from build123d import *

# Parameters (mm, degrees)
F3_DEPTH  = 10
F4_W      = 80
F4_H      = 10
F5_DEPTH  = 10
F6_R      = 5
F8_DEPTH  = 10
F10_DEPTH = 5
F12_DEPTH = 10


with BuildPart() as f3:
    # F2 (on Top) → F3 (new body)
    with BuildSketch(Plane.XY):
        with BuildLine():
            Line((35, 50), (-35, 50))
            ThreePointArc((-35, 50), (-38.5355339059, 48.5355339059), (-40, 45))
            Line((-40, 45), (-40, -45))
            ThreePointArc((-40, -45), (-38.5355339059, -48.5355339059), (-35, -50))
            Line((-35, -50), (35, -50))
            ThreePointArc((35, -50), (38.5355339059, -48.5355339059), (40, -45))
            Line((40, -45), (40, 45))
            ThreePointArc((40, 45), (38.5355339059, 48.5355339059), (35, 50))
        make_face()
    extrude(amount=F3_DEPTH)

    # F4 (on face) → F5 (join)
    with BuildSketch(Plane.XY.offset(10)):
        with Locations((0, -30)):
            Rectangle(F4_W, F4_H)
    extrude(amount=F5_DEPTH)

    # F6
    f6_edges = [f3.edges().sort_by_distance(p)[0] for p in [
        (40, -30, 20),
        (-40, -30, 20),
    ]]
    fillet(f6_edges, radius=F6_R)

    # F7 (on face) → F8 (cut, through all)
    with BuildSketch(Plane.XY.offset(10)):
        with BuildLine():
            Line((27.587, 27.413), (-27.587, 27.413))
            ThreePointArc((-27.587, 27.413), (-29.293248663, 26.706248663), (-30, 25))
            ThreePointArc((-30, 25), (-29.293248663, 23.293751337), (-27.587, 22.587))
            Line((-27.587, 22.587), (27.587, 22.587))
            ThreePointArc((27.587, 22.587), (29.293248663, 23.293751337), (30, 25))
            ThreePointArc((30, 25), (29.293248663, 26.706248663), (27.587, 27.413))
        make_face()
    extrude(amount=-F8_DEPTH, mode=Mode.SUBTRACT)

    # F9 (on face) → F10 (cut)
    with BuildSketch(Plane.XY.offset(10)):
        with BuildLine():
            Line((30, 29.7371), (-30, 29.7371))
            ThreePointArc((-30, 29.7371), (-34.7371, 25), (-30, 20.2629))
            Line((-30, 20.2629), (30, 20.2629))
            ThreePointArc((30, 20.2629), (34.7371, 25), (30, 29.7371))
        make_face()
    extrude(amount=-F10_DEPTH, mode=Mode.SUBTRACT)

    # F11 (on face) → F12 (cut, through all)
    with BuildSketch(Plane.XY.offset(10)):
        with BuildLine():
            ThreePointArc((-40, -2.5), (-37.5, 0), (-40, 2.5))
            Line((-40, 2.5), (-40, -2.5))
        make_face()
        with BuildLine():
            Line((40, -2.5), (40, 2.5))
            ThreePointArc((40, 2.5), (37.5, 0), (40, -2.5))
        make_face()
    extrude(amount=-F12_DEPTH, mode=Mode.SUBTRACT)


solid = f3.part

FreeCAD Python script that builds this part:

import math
import FreeCAD as App
import Part
import Sketcher

V = App.Vector
Q = App.Units.Quantity


def edges_at(feature, points):
    """Names of the edges that pass closest to the given points."""
    edges = feature.Shape.Edges
    near = lambda p: min(range(len(edges)), key=lambda i: edges[i].distToShape(Part.Vertex(*p))[0])
    return sorted({f"Edge{near(p) + 1}" for p in points})


def add_polygon(sketch, points):
    """Adds a closed chain of lines whose ends are joined by coincident constraints."""
    first, n = sketch.GeometryCount, len(points)
    for a, b in zip(points, points[1:] + points[:1]):
        sketch.addGeometry(Part.LineSegment(App.Vector(*a, 0), App.Vector(*b, 0)), False)
    for i in range(n):
        sketch.addConstraint(Sketcher.Constraint("Coincident", first + i, 2, first + (i + 1) % n, 1))

doc = App.newDocument("Part")
body = doc.addObject("PartDesign::Body", "Body")

# Sketch on XY plane
sketch1 = doc.addObject("Sketcher::SketchObject", "Sketch")
body.addObject(sketch1)
sketch1.AttachmentSupport = (doc.XY_Plane, [""])
sketch1.MapMode = "FlatFace"
sketch1.addGeometry([
    Part.LineSegment(V(35, 50, 0), V(-35, 50, 0)),  # 0
    Part.ArcOfCircle(Part.Circle(V(-35, 45, 0), V(0, 0, 1), 5), math.radians(90), math.radians(180)),  # 1
    Part.LineSegment(V(-40, 45, 0), V(-40, -45, 0)),  # 2
    Part.ArcOfCircle(Part.Circle(V(-35, -45, 0), V(0, 0, 1), 5), math.radians(180), math.radians(270)),  # 3
    Part.LineSegment(V(-35, -50, 0), V(35, -50, 0)),  # 4
    Part.ArcOfCircle(Part.Circle(V(35, -45, 0), V(0, 0, 1), 5), math.radians(-90), math.radians(0)),  # 5
    Part.LineSegment(V(40, -45, 0), V(40, 45, 0)),  # 6
    Part.ArcOfCircle(Part.Circle(V(35, 45, 0), V(0, 0, 1), 5), math.radians(0), math.radians(90)),  # 7
], False)
sketch1.addConstraint([
    Sketcher.Constraint("Tangent", 0, 2, 1, 1),
    Sketcher.Constraint("Tangent", 1, 2, 2, 1),
    Sketcher.Constraint("Tangent", 2, 2, 3, 1),
    Sketcher.Constraint("Tangent", 3, 2, 4, 1),
    Sketcher.Constraint("Tangent", 4, 2, 5, 1),
    Sketcher.Constraint("Tangent", 5, 2, 6, 1),
    Sketcher.Constraint("Tangent", 6, 2, 7, 1),
    Sketcher.Constraint("Tangent", 7, 2, 0, 1),
    Sketcher.Constraint("Horizontal", 0),
    Sketcher.Constraint("Vertical", 2),
    Sketcher.Constraint("Horizontal", 4),
    Sketcher.Constraint("Vertical", 6),
    Sketcher.Constraint("Equal", 1, 3),
    Sketcher.Constraint("Equal", 3, 5),
    Sketcher.Constraint("Equal", 5, 7),
    Sketcher.Constraint("Symmetric", 1, 3, 5, 3, -1, 1),
    Sketcher.Constraint("Radius", 1, Q("5 mm")),
    Sketcher.Constraint("DistanceX", 0, 2, 0, 1, Q("70 mm")),
    Sketcher.Constraint("DistanceY", 2, 2, 2, 1, Q("90 mm")),
])
pad1 = doc.addObject("PartDesign::Pad", "Pad")
body.addObject(pad1)
pad1.Profile = sketch1
pad1.Length = 10

# Sketch on XY plane
sketch2 = doc.addObject("Sketcher::SketchObject", "Sketch001")
body.addObject(sketch2)
sketch2.AttachmentSupport = (doc.XY_Plane, [""])
sketch2.MapMode = "FlatFace"
sketch2.AttachmentOffset = App.Placement(V(0, 0, 10), App.Rotation())
add_polygon(sketch2, [(-40, -25), (-40, -35), (40, -35), (40, -25)])  # lines 0-3
sketch2.addConstraint([
    Sketcher.Constraint("Vertical", 0),
    Sketcher.Constraint("Horizontal", 1),
    Sketcher.Constraint("Vertical", 2),
    Sketcher.Constraint("Horizontal", 3),
    Sketcher.Constraint("DistanceX", 1, 1, 1, 2, Q("80 mm")),
    Sketcher.Constraint("DistanceY", 0, 2, 0, 1, Q("10 mm")),
    Sketcher.Constraint("DistanceX", 0, 2, -1, 1, Q("40 mm")),
    Sketcher.Constraint("DistanceY", 0, 2, -1, 1, Q("35 mm")),
])
pad2 = doc.addObject("PartDesign::Pad", "Pad001")
body.addObject(pad2)
pad2.Profile = sketch2
pad2.Length = 10
doc.recompute()

fillet = doc.addObject("PartDesign::Fillet", "Fillet")
body.addObject(fillet)
fillet.Base = (pad2, edges_at(pad2, [(40, -30, 20), (-40, -30, 20)]))
fillet.Radius = 5

# Sketch on XY plane
sketch3 = doc.addObject("Sketcher::SketchObject", "Sketch002")
body.addObject(sketch3)
sketch3.AttachmentSupport = (doc.XY_Plane, [""])
sketch3.MapMode = "FlatFace"
sketch3.AttachmentOffset = App.Placement(V(0, 0, 10), App.Rotation())
sketch3.addGeometry([
    Part.LineSegment(V(27.6, 27.4, 0), V(-27.6, 27.4, 0)),  # 0
    Part.ArcOfCircle(Part.Circle(V(-27.6, 25, 0), V(0, 0, 1), 2.4), math.radians(90), math.radians(180)),  # 1
    Part.ArcOfCircle(Part.Circle(V(-27.6, 25, 0), V(0, 0, 1), 2.4), math.radians(180), math.radians(270)),  # 2
    Part.LineSegment(V(-27.6, 22.6, 0), V(27.6, 22.6, 0)),  # 3
    Part.ArcOfCircle(Part.Circle(V(27.6, 25, 0), V(0, 0, 1), 2.4), math.radians(-90), math.radians(0)),  # 4
    Part.ArcOfCircle(Part.Circle(V(27.6, 25, 0), V(0, 0, 1), 2.4), math.radians(0), math.radians(90)),  # 5
], False)
sketch3.addConstraint([
    Sketcher.Constraint("Tangent", 0, 2, 1, 1),
    Sketcher.Constraint("Tangent", 1, 2, 2, 1),
    Sketcher.Constraint("Tangent", 2, 2, 3, 1),
    Sketcher.Constraint("Tangent", 3, 2, 4, 1),
    Sketcher.Constraint("Tangent", 4, 2, 5, 1),
    Sketcher.Constraint("Tangent", 5, 2, 0, 1),
    Sketcher.Constraint("Horizontal", 0),
    Sketcher.Constraint("Horizontal", 3),
    Sketcher.Constraint("Equal", 1, 2),
    Sketcher.Constraint("Equal", 2, 4),
    Sketcher.Constraint("Symmetric", 1, 2, 4, 2, -2),
    Sketcher.Constraint("Horizontal", 5, 3, 1, 2),
    Sketcher.Constraint("DistanceY", -1, 1, 1, 3, Q("25 mm")),
    Sketcher.Constraint("DistanceX", 1, 2, -1, 1, Q("30 mm")),
    Sketcher.Constraint("Radius", 1, Q("2.413 mm")),
])
pocket1 = doc.addObject("PartDesign::Pocket", "Pocket")
body.addObject(pocket1)
pocket1.Profile = sketch3
pocket1.Type = "ThroughAll"

# Sketch on XY plane
sketch4 = doc.addObject("Sketcher::SketchObject", "Sketch003")
body.addObject(sketch4)
sketch4.AttachmentSupport = (doc.XY_Plane, [""])
sketch4.MapMode = "FlatFace"
sketch4.AttachmentOffset = App.Placement(V(0, 0, 10), App.Rotation())
sketch4.addGeometry([
    Part.LineSegment(V(30, 29.7, 0), V(-30, 29.7, 0)),
    Part.ArcOfCircle(Part.Circle(V(-30, 25, 0), V(0, 0, 1), 4.7), math.radians(90), math.radians(270)),
    Part.LineSegment(V(-30, 20.3, 0), V(30, 20.3, 0)),
    Part.ArcOfCircle(Part.Circle(V(30, 25, 0), V(0, 0, 1), 4.7), math.radians(-90), math.radians(90)),
], False)
sketch4.addConstraint([
    Sketcher.Constraint("Tangent", 0, 2, 1, 1),
    Sketcher.Constraint("Tangent", 1, 2, 2, 1),
    Sketcher.Constraint("Tangent", 2, 2, 3, 1),
    Sketcher.Constraint("Tangent", 3, 2, 0, 1),
    Sketcher.Constraint("Horizontal", 0),
    Sketcher.Constraint("Horizontal", 2),
    Sketcher.Constraint("DistanceX", 0, 2, 0, 1, Q("60 mm")),
    Sketcher.Constraint("DistanceX", 1, 3, -1, 1, Q("30 mm")),
    Sketcher.Constraint("DistanceY", -1, 1, 1, 3, Q("25 mm")),
    Sketcher.Constraint("Radius", 1, Q("4.7371 mm")),
])
pocket2 = doc.addObject("PartDesign::Pocket", "Pocket001")
body.addObject(pocket2)
pocket2.Profile = sketch4
pocket2.Length = 5

# Sketch on XY plane
sketch5 = doc.addObject("Sketcher::SketchObject", "Sketch004")
body.addObject(sketch5)
sketch5.AttachmentSupport = (doc.XY_Plane, [""])
sketch5.MapMode = "FlatFace"
sketch5.AttachmentOffset = App.Placement(V(0, 0, 10), App.Rotation())
sketch5.addGeometry([
    Part.ArcOfCircle(Part.Circle(V(-40, 0, 0), V(0, 0, 1), 2.5), math.radians(-90), math.radians(90)),
    Part.LineSegment(V(-40, 2.5, 0), V(-40, -2.5, 0)),
    Part.LineSegment(V(40, -2.5, 0), V(40, 2.5, 0)),
    Part.ArcOfCircle(Part.Circle(V(40, 0, 0), V(0, 0, 1), 2.5), math.radians(90), math.radians(270)),
], False)
sketch5.addConstraint([
    Sketcher.Constraint("Coincident", 0, 1, 1, 2),
    Sketcher.Constraint("Coincident", 1, 1, 0, 2),
    Sketcher.Constraint("Coincident", 2, 1, 3, 2),
    Sketcher.Constraint("Coincident", 3, 1, 2, 2),
    Sketcher.Constraint("Vertical", 1),
    Sketcher.Constraint("Vertical", 2),
    Sketcher.Constraint("Equal", 0, 3),
    Sketcher.Constraint("Symmetric", 0, 3, 3, 3, -1, 1),
    Sketcher.Constraint("Symmetric", 0, 1, 2, 1, -2),
    Sketcher.Constraint("Vertical", 3, 3, 2, 1),
    Sketcher.Constraint("Radius", 0, Q("2.5 mm")),
    Sketcher.Constraint("DistanceX", 0, 3, -1, 1, Q("40 mm")),
])
pocket3 = doc.addObject("PartDesign::Pocket", "Pocket002")
body.addObject(pocket3)
pocket3.Profile = sketch5
pocket3.Type = "ThroughAll"

doc.recompute()
